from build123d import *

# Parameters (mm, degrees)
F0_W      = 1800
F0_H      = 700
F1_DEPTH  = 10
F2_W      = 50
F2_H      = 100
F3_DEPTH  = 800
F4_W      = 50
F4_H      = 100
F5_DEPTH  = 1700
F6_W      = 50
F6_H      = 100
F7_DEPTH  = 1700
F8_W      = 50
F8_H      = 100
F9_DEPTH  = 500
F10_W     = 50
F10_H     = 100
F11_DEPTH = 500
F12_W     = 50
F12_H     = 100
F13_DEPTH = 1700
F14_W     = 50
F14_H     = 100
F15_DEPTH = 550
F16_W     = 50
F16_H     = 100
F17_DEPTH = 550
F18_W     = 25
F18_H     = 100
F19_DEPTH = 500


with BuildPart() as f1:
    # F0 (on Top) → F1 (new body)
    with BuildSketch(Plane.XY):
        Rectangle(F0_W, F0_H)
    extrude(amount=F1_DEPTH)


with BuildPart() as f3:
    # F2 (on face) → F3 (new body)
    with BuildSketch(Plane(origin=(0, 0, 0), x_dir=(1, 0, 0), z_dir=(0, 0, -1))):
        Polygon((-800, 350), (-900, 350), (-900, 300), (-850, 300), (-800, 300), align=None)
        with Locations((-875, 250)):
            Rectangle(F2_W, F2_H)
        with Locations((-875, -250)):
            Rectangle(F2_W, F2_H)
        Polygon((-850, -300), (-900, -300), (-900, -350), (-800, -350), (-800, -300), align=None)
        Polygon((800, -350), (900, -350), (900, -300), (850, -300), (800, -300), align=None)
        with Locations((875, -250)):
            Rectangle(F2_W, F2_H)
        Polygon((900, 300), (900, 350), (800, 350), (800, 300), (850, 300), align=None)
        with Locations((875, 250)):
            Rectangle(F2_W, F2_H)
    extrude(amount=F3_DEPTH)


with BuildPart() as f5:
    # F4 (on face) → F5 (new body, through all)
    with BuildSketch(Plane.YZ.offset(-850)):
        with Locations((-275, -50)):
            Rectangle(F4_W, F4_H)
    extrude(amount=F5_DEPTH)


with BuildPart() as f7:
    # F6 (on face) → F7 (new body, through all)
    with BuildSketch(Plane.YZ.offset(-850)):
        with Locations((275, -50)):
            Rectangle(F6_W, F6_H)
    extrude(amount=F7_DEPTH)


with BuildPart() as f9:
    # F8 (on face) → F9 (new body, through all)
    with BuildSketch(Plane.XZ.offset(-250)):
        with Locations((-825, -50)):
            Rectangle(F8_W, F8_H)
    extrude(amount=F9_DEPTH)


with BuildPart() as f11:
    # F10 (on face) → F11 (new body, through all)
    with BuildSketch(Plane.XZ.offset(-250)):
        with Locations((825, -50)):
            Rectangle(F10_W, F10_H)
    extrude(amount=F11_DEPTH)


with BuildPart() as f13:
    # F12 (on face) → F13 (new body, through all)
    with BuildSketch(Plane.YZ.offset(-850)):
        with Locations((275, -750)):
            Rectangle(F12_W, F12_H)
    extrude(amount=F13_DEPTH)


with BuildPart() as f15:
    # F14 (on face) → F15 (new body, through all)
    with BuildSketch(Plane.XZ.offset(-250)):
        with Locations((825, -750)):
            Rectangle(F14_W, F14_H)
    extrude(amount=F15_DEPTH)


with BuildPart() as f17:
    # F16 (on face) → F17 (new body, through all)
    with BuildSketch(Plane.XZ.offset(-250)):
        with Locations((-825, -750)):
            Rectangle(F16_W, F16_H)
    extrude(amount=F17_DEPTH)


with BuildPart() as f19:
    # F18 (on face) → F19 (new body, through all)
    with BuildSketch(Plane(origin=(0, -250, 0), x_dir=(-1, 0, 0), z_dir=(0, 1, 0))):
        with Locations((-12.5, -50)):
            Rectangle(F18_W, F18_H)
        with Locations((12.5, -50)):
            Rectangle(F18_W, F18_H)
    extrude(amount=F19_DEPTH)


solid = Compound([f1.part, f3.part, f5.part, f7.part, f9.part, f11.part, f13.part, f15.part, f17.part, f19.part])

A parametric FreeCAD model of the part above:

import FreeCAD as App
import Part
import Sketcher
Q = App.Units.Quantity

doc = App.newDocument("Part")
body = doc.addObject("PartDesign::Body", "Body")

# Sketch on XY plane
sketch1 = body.newObject("Sketcher::SketchObject", "Sketch")
sketch1.AttachmentSupport = (doc.getObject("XY_Plane"), [""])
sketch1.MapMode = "FlatFace"
sketch1.addGeometry([
    Part.LineSegment(App.Vector(-900, 350, 0), App.Vector(-900, -350, 0)),
    Part.LineSegment(App.Vector(-900, -350, 0), App.Vector(900, -350, 0)),
    Part.LineSegment(App.Vector(900, -350, 0), App.Vector(900, 350, 0)),
    Part.LineSegment(App.Vector(900, 350, 0), App.Vector(-900, 350, 0)),
], False)
sketch1.addConstraint([
    Sketcher.Constraint("Coincident", 0, 2, 1, 1),
    Sketcher.Constraint("Coincident", 1, 2, 2, 1),
    Sketcher.Constraint("Coincident", 2, 2, 3, 1),
    Sketcher.Constraint("Coincident", 3, 2, 0, 1),
    Sketcher.Constraint("Vertical", 0),
    Sketcher.Constraint("Horizontal", 1),
    Sketcher.Constraint("Vertical", 2),
    Sketcher.Constraint("Horizontal", 3),
    Sketcher.Constraint("Symmetric", 0, 2, 2, 2, -1, 1),
    Sketcher.Constraint("DistanceX", 1, 1, 1, 2, Q("1800 mm")),
    Sketcher.Constraint("DistanceY", 0, 2, 0, 1, Q("700 mm")),
])
pad1 = body.newObject("PartDesign::Pad", "Pad")
pad1.Profile = sketch1
pad1.Length = 10
body2 = doc.addObject("PartDesign::Body", "Body001")
body2.AllowCompound = True

# Sketch on XY plane
sketch2 = body2.newObject("Sketcher::SketchObject", "Sketch001")
sketch2.AttachmentSupport = (doc.getObject("XY_Plane001"), [""])
sketch2.MapMode = "FlatFace"
sketch2.addGeometry([
    Part.LineSegment(App.Vector(-800, -350, 0), App.Vector(-900, -350, 0)),  # 0
    Part.LineSegment(App.Vector(-900, -350, 0), App.Vector(-900, -200, 0)),  # 1
    Part.LineSegment(App.Vector(-900, -200, 0), App.Vector(-850, -200, 0)),  # 2
    Part.LineSegment(App.Vector(-850, -200, 0), App.Vector(-850, -300, 0)),  # 3
    Part.LineSegment(App.Vector(-850, -300, 0), App.Vector(-800, -300, 0)),  # 4
    Part.LineSegment(App.Vector(-800, -300, 0), App.Vector(-800, -350, 0)),  # 5
    Part.LineSegment(App.Vector(-900, 200, 0), App.Vector(-900, 350, 0)),  # 6
    Part.LineSegment(App.Vector(-900, 350, 0), App.Vector(-800, 350, 0)),  # 7
    Part.LineSegment(App.Vector(-800, 350, 0), App.Vector(-800, 300, 0)),  # 8
    Part.LineSegment(App.Vector(-800, 300, 0), App.Vector(-850, 300, 0)),  # 9
    Part.LineSegment(App.Vector(-850, 300, 0), App.Vector(-850, 200, 0)),  # 10
    Part.LineSegment(App.Vector(-850, 200, 0), App.Vector(-900, 200, 0)),  # 11
    Part.LineSegment(App.Vector(800, 350, 0), App.Vector(900, 350, 0)),  # 12
    Part.LineSegment(App.Vector(900, 350, 0), App.Vector(900, 200, 0)),  # 13
    Part.LineSegment(App.Vector(900, 200, 0), App.Vector(850, 200, 0)),  # 14
    Part.LineSegment(App.Vector(850, 200, 0), App.Vector(850, 300, 0)),  # 15
    Part.LineSegment(App.Vector(850, 300, 0), App.Vector(800, 300, 0)),  # 16
    Part.LineSegment(App.Vector(800, 300, 0), App.Vector(800, 350, 0)),  # 17
    Part.LineSegment(App.Vector(900, -350, 0), App.Vector(800, -350, 0)),  # 18
    Part.LineSegment(App.Vector(800, -350, 0), App.Vector(800, -300, 0)),  # 19
    Part.LineSegment(App.Vector(800, -300, 0), App.Vector(850, -300, 0)),  # 20
    Part.LineSegment(App.Vector(850, -300, 0), App.Vector(850, -200, 0)),  # 21
    Part.LineSegment(App.Vector(850, -200, 0), App.Vector(900, -200, 0)),  # 22
    Part.LineSegment(App.Vector(900, -200, 0), App.Vector(900, -350, 0)),  # 23
], False)
sketch2.addConstraint([
    Sketcher.Constraint("Coincident", 0, 2, 1, 1),
    Sketcher.Constraint("Coincident", 1, 2, 2, 1),
    Sketcher.Constraint("Coincident", 2, 2, 3, 1),
    Sketcher.Constraint("Coincident", 3, 2, 4, 1),
    Sketcher.Constraint("Coincident", 4, 2, 5, 1),
    Sketcher.Constraint("Coincident", 5, 2, 0, 1),
    Sketcher.Constraint("Coincident", 6, 2, 7, 1),
    Sketcher.Constraint("Coincident", 7, 2, 8, 1),
    Sketcher.Constraint("Coincident", 8, 2, 9, 1),
    Sketcher.Constraint("Coincident", 9, 2, 10, 1),
    Sketcher.Constraint("Coincident", 10, 2, 11, 1),
    Sketcher.Constraint("Coincident", 11, 2, 6, 1),
    Sketcher.Constraint("Coincident", 12, 2, 13, 1),
    Sketcher.Constraint("Coincident", 13, 2, 14, 1),
    Sketcher.Constraint("Coincident", 14, 2, 15, 1),
    Sketcher.Constraint("Coincident", 15, 2, 16, 1),
    Sketcher.Constraint("Coincident", 16, 2, 17, 1),
    Sketcher.Constraint("Coincident", 17, 2, 12, 1),
    Sketcher.Constraint("Coincident", 18, 2, 19, 1),
    Sketcher.Constraint("Coincident", 19, 2, 20, 1),
    Sketcher.Constraint("Coincident", 20, 2, 21, 1),
    Sketcher.Constraint("Coincident", 21, 2, 22, 1),
    Sketcher.Constraint("Coincident", 22, 2, 23, 1),
    Sketcher.Constraint("Coincident", 23, 2, 18, 1),
    Sketcher.Constraint("Horizontal", 0),
    Sketcher.Constraint("Vertical", 1),
    Sketcher.Constraint("Horizontal", 2),
    Sketcher.Constraint("Vertical", 3),
    Sketcher.Constraint("Horizontal", 4),
    Sketcher.Constraint("Vertical", 5),
    Sketcher.Constraint("Vertical", 6),
    Sketcher.Constraint("Horizontal", 7),
    Sketcher.Constraint("Vertical", 8),
    Sketcher.Constraint("Horizontal", 9),
    Sketcher.Constraint("Vertical", 10),
    Sketcher.Constraint("Horizontal", 11),
    Sketcher.Constraint("Horizontal", 12),
    Sketcher.Constraint("Vertical", 13),
    Sketcher.Constraint("Horizontal", 14),
    Sketcher.Constraint("Vertical", 15),
    Sketcher.Constraint("Horizontal", 16),
    Sketcher.Constraint("Vertical", 17),
    Sketcher.Constraint("Horizontal", 18),
    Sketcher.Constraint("Vertical", 19),
    Sketcher.Constraint("Horizontal", 20),
    Sketcher.Constraint("Vertical", 21),
    Sketcher.Constraint("Horizontal", 22),
    Sketcher.Constraint("Vertical", 23),
    Sketcher.Constraint("Symmetric", 0, 2, 12, 2, -1, 1),
    Sketcher.Constraint("Symmetric", 2, 2, 14, 2, -1, 1),
    Sketcher.Constraint("Symmetric", 4, 2, 16, 2, -1, 1),
    Sketcher.Constraint("Symmetric", 7, 2, 18, 2, -1, 1),
    Sketcher.Constraint("Symmetric", 9, 2, 20, 2, -1, 1),
    Sketcher.Constraint("Symmetric", 11, 2, 22, 2, -1, 1),
    Sketcher.Constraint("Symmetric", 6, 2, 12, 2, -2),
    Sketcher.Constraint("Symmetric", 10, 2, 14, 2, -2),
    Sketcher.Constraint("Symmetric", 8, 2, 16, 2, -2),
    Sketcher.Constraint("Equal", 2, 4),
    Sketcher.Constraint("Equal", 18, 3),
    Sketcher.Constraint("Equal", 22, 5),
    Sketcher.Constraint("DistanceX", 0, 2, 0, 1, Q("100 mm")),
    Sketcher.Constraint("DistanceX", 0, 2, -1, 1, Q("900 mm")),
    Sketcher.Constraint("DistanceY", 0, 2, -1, 1, Q("350 mm")),
])
pad2 = body2.newObject("PartDesign::Pad", "Pad001")
pad2.Profile = sketch2
pad2.Length = 800
pad2.Reversed = True
body3 = doc.addObject("PartDesign::Body", "Body002")

# Sketch on YZ plane
sketch3 = body3.newObject("Sketcher::SketchObject", "Sketch002")
sketch3.AttachmentSupport = (doc.getObject("YZ_Plane002"), [""])
sketch3.MapMode = "FlatFace"
sketch3.AttachmentOffset = App.Placement(App.Vector(0, 0, -850), App.Rotation())
sketch3.addGeometry([
    Part.LineSegment(App.Vector(-300, 0, 0), App.Vector(-300, -100, 0)),
    Part.LineSegment(App.Vector(-300, -100, 0), App.Vector(-250, -100, 0)),
    Part.LineSegment(App.Vector(-250, -100, 0), App.Vector(-250, 0, 0)),
    Part.LineSegment(App.Vector(-250, 0, 0), App.Vector(-300, 0, 0)),
], False)
sketch3.addConstraint([
    Sketcher.Constraint("Coincident", 0, 2, 1, 1),
    Sketcher.Constraint("Coincident", 1, 2, 2, 1),
    Sketcher.Constraint("Coincident", 2, 2, 3, 1),
    Sketcher.Constraint("Coincident", 3, 2, 0, 1),
    Sketcher.Constraint("Vertical", 0),
    Sketcher.Constraint("Horizontal", 1),
    Sketcher.Constraint("Vertical", 2),
    Sketcher.Constraint("Horizontal", 3),
    Sketcher.Constraint("PointOnObject", 2, 2, -1),
    Sketcher.Constraint("DistanceX", 1, 1, 1, 2, Q("50 mm")),
    Sketcher.Constraint("DistanceY", 0, 2, 0, 1, Q("100 mm")),
    Sketcher.Constraint("DistanceX", 0, 2, -1, 1, Q("300 mm")),
])
pad3 = body3.newObject("PartDesign::Pad", "Pad002")
pad3.Profile = sketch3
pad3.Length = 1700
body4 = doc.addObject("PartDesign::Body", "Body003")

# Sketch on YZ plane
sketch4 = body4.newObject("Sketcher::SketchObject", "Sketch003")
sketch4.AttachmentSupport = (doc.getObject("YZ_Plane003"), [""])
sketch4.MapMode = "FlatFace"
sketch4.AttachmentOffset = App.Placement(App.Vector(0, 0, -850), App.Rotation())
sketch4.addGeometry([
    Part.LineSegment(App.Vector(250, 0, 0), App.Vector(250, -100, 0)),
    Part.LineSegment(App.Vector(250, -100, 0), App.Vector(300, -100, 0)),
    Part.LineSegment(App.Vector(300, -100, 0), App.Vector(300, 0, 0)),
    Part.LineSegment(App.Vector(300, 0, 0), App.Vector(250, 0, 0)),
], False)
sketch4.addConstraint([
    Sketcher.Constraint("Coincident", 0, 2, 1, 1),
    Sketcher.Constraint("Coincident", 1, 2, 2, 1),
    Sketcher.Constraint("Coincident", 2, 2, 3, 1),
    Sketcher.Constraint("Coincident", 3, 2, 0, 1),
    Sketcher.Constraint("Vertical", 0),
    Sketcher.Constraint("Horizontal", 1),
    Sketcher.Constraint("Vertical", 2),
    Sketcher.Constraint("Horizontal", 3),
    Sketcher.Constraint("PointOnObject", 2, 2, -1),
    Sketcher.Constraint("DistanceX", 1, 1, 1, 2, Q("50 mm")),
    Sketcher.Constraint("DistanceY", 0, 2, 0, 1, Q("100 mm")),
    Sketcher.Constraint("DistanceX", -1, 1, 0, 2, Q("250 mm")),
])
pad4 = body4.newObject("PartDesign::Pad", "Pad003")
pad4.Profile = sketch4
pad4.Length = 1700
body5 = doc.addObject("PartDesign::Body", "Body004")

# Sketch on XZ plane
sketch5 = body5.newObject("Sketcher::SketchObject", "Sketch004")
sketch5.AttachmentSupport = (doc.getObject("XZ_Plane004"), [""])
sketch5.MapMode = "FlatFace"
sketch5.AttachmentOffset = App.Placement(App.Vector(0, 0, -250), App.Rotation())
sketch5.addGeometry([
    Part.LineSegment(App.Vector(-850, 0, 0), App.Vector(-850, -100, 0)),
    Part.LineSegment(App.Vector(-850, -100, 0), App.Vector(-800, -100, 0)),
    Part.LineSegment(App.Vector(-800, -100, 0), App.Vector(-800, 0, 0)),
    Part.LineSegment(App.Vector(-800, 0, 0), App.Vector(-850, 0, 0)),
], False)
sketch5.addConstraint([
    Sketcher.Constraint("Coincident", 0, 2, 1, 1),
    Sketcher.Constraint("Coincident", 1, 2, 2, 1),
    Sketcher.Constraint("Coincident", 2, 2, 3, 1),
    Sketcher.Constraint("Coincident", 3, 2, 0, 1),
    Sketcher.Constraint("Vertical", 0),
    Sketcher.Constraint("Horizontal", 1),
    Sketcher.Constraint("Vertical", 2),
    Sketcher.Constraint("Horizontal", 3),
    Sketcher.Constraint("PointOnObject", 2, 2, -1),
    Sketcher.Constraint("DistanceX", 1, 1, 1, 2, Q("50 mm")),
    Sketcher.Constraint("DistanceY", 0, 2, 0, 1, Q("100 mm")),
    Sketcher.Constraint("DistanceX", 0, 2, -1, 1, Q("850 mm")),
])
pad5 = body5.newObject("PartDesign::Pad", "Pad004")
pad5.Profile = sketch5
pad5.Length = 500
body6 = doc.addObject("PartDesign::Body", "Body005")

# Sketch on XZ plane
sketch6 = body6.newObject("Sketcher::SketchObject", "Sketch005")
sketch6.AttachmentSupport = (doc.getObject("XZ_Plane005"), [""])
sketch6.MapMode = "FlatFace"
sketch6.AttachmentOffset = App.Placement(App.Vector(0, 0, -250), App.Rotation())
sketch6.addGeometry([
    Part.LineSegment(App.Vector(800, 0, 0), App.Vector(800, -100, 0)),
    Part.LineSegment(App.Vector(800, -100, 0), App.Vector(850, -100, 0)),
    Part.LineSegment(App.Vector(850, -100, 0), App.Vector(850, 0, 0)),
    Part.LineSegment(App.Vector(850, 0, 0), App.Vector(800, 0, 0)),
], False)
sketch6.addConstraint([
    Sketcher.Constraint("Coincident", 0, 2, 1, 1),
    Sketcher.Constraint("Coincident", 1, 2, 2, 1),
    Sketcher.Constraint("Coincident", 2, 2, 3, 1),
    Sketcher.Constraint("Coincident", 3, 2, 0, 1),
    Sketcher.Constraint("Vertical", 0),
    Sketcher.Constraint("Horizontal", 1),
    Sketcher.Constraint("Vertical", 2),
    Sketcher.Constraint("Horizontal", 3),
    Sketcher.Constraint("PointOnObject", 2, 2, -1),
    Sketcher.Constraint("DistanceX", 1, 1, 1, 2, Q("50 mm")),
    Sketcher.Constraint("DistanceY", 0, 2, 0, 1, Q("100 mm")),
    Sketcher.Constraint("DistanceX", -1, 1, 0, 2, Q("800 mm")),
])
pad6 = body6.newObject("PartDesign::Pad", "Pad005")
pad6.Profile = sketch6
pad6.Length = 500
body7 = doc.addObject("PartDesign::Body", "Body006")

# Sketch on YZ plane
sketch7 = body7.newObject("Sketcher::SketchObject", "Sketch006")
sketch7.AttachmentSupport = (doc.getObject("YZ_Plane006"), [""])
sketch7.MapMode = "FlatFace"
sketch7.AttachmentOffset = App.Placement(App.Vector(0, 0, -850), App.Rotation())
sketch7.addGeometry([
    Part.LineSegment(App.Vector(250, -700, 0), App.Vector(250, -800, 0)),
    Part.LineSegment(App.Vector(250, -800, 0), App.Vector(300, -800, 0)),
    Part.LineSegment(App.Vector(300, -800, 0), App.Vector(300, -700, 0)),
    Part.LineSegment(App.Vector(300, -700, 0), App.Vector(250, -700, 0)),
], False)
sketch7.addConstraint([
    Sketcher.Constraint("Coincident", 0, 2, 1, 1),
    Sketcher.Constraint("Coincident", 1, 2, 2, 1),
    Sketcher.Constraint("Coincident", 2, 2, 3, 1),
    Sketcher.Constraint("Coincident", 3, 2, 0, 1),
    Sketcher.Constraint("Vertical", 0),
    Sketcher.Constraint("Horizontal", 1),
    Sketcher.Constraint("Vertical", 2),
    Sketcher.Constraint("Horizontal", 3),
    Sketcher.Constraint("DistanceX", 1, 1, 1, 2, Q("50 mm")),
    Sketcher.Constraint("DistanceY", 0, 2, 0, 1, Q("100 mm")),
    Sketcher.Constraint("DistanceX", -1, 1, 0, 2, Q("250 mm")),
    Sketcher.Constraint("DistanceY", 0, 2, -1, 1, Q("800 mm")),
])
pad7 = body7.newObject("PartDesign::Pad", "Pad006")
pad7.Profile = sketch7
pad7.Length = 1700
body8 = doc.addObject("PartDesign::Body", "Body007")

# Sketch on XZ plane
sketch8 = body8.newObject("Sketcher::SketchObject", "Sketch007")
sketch8.AttachmentSupport = (doc.getObject("XZ_Plane007"), [""])
sketch8.MapMode = "FlatFace"
sketch8.AttachmentOffset = App.Placement(App.Vector(0, 0, -250), App.Rotation())
sketch8.addGeometry([
    Part.LineSegment(App.Vector(800, -700, 0), App.Vector(800, -800, 0)),
    Part.LineSegment(App.Vector(800, -800, 0), App.Vector(850, -800, 0)),
    Part.LineSegment(App.Vector(850, -800, 0), App.Vector(850, -700, 0)),
    Part.LineSegment(App.Vector(850, -700, 0), App.Vector(800, -700, 0)),
], False)
sketch8.addConstraint([
    Sketcher.Constraint("Coincident", 0, 2, 1, 1),
    Sketcher.Constraint("Coincident", 1, 2, 2, 1),
    Sketcher.Constraint("Coincident", 2, 2, 3, 1),
    Sketcher.Constraint("Coincident", 3, 2, 0, 1),
    Sketcher.Constraint("Vertical", 0),
    Sketcher.Constraint("Horizontal", 1),
    Sketcher.Constraint("Vertical", 2),
    Sketcher.Constraint("Horizontal", 3),
    Sketcher.Constraint("DistanceX", 1, 1, 1, 2, Q("50 mm")),
    Sketcher.Constraint("DistanceY", 0, 2, 0, 1, Q("100 mm")),
    Sketcher.Constraint("DistanceX", -1, 1, 0, 2, Q("800 mm")),
    Sketcher.Constraint("DistanceY", 0, 2, -1, 1, Q("800 mm")),
])
pad8 = body8.newObject("PartDesign::Pad", "Pad007")
pad8.Profile = sketch8
pad8.Length = 550
body9 = doc.addObject("PartDesign::Body", "Body008")

# Sketch on XZ plane
sketch9 = body9.newObject("Sketcher::SketchObject", "Sketch008")
sketch9.AttachmentSupport = (doc.getObject("XZ_Plane008"), [""])
sketch9.MapMode = "FlatFace"
sketch9.AttachmentOffset = App.Placement(App.Vector(0, 0, -250), App.Rotation())
sketch9.addGeometry([
    Part.LineSegment(App.Vector(-850, -700, 0), App.Vector(-850, -800, 0)),
    Part.LineSegment(App.Vector(-850, -800, 0), App.Vector(-800, -800, 0)),
    Part.LineSegment(App.Vector(-800, -800, 0), App.Vector(-800, -700, 0)),
    Part.LineSegment(App.Vector(-800, -700, 0), App.Vector(-850, -700, 0)),
], False)
sketch9.addConstraint([
    Sketcher.Constraint("Coincident", 0, 2, 1, 1),
    Sketcher.Constraint("Coincident", 1, 2, 2, 1),
    Sketcher.Constraint("Coincident", 2, 2, 3, 1),
    Sketcher.Constraint("Coincident", 3, 2, 0, 1),
    Sketcher.Constraint("Vertical", 0),
    Sketcher.Constraint("Horizontal", 1),
    Sketcher.Constraint("Vertical", 2),
    Sketcher.Constraint("Horizontal", 3),
    Sketcher.Constraint("DistanceX", 1, 1, 1, 2, Q("50 mm")),
    Sketcher.Constraint("DistanceY", 0, 2, 0, 1, Q("100 mm")),
    Sketcher.Constraint("DistanceX", 0, 2, -1, 1, Q("850 mm")),
    Sketcher.Constraint("DistanceY", 0, 2, -1, 1, Q("800 mm")),
])
pad9 = body9.newObject("PartDesign::Pad", "Pad008")
pad9.Profile = sketch9
pad9.Length = 550
body10 = doc.addObject("PartDesign::Body", "Body009")

# Sketch on XZ plane
sketch10 = body10.newObject("Sketcher::SketchObject", "Sketch009")
sketch10.AttachmentSupport = (doc.getObject("XZ_Plane009"), [""])
sketch10.MapMode = "FlatFace"
sketch10.AttachmentOffset = App.Placement(App.Vector(0, 0, 250), App.Rotation())
sketch10.addGeometry([
    Part.LineSegment(App.Vector(25, 0, 0), App.Vector(25, -100, 0)),
    Part.LineSegment(App.Vector(25, -100, 0), App.Vector(-25, -100, 0)),
    Part.LineSegment(App.Vector(-25, -100, 0), App.Vector(-25, 0, 0)),
    Part.LineSegment(App.Vector(-25, 0, 0), App.Vector(25, 0, 0)),
], False)
sketch10.addConstraint([
    Sketcher.Constraint("Coincident", 0, 2, 1, 1),
    Sketcher.Constraint("Coincident", 1, 2, 2, 1),
    Sketcher.Constraint("Coincident", 2, 2, 3, 1),
    Sketcher.Constraint("Coincident", 3, 2, 0, 1),
    Sketcher.Constraint("Vertical", 0),
    Sketcher.Constraint("Horizontal", 1),
    Sketcher.Constraint("Vertical", 2),
    Sketcher.Constraint("Horizontal", 3),
    Sketcher.Constraint("Symmetric", 2, 2, 3, 2, -1, 1),
    Sketcher.Constraint("DistanceX", 1, 2, 1, 1, Q("50 mm")),
    Sketcher.Constraint("DistanceY", 0, 2, 0, 1, Q("100 mm")),
])
pad10 = body10.newObject("PartDesign::Pad", "Pad009")
pad10.Profile = sketch10
pad10.Length = 500
pad10.Reversed = True

doc.recompute()
